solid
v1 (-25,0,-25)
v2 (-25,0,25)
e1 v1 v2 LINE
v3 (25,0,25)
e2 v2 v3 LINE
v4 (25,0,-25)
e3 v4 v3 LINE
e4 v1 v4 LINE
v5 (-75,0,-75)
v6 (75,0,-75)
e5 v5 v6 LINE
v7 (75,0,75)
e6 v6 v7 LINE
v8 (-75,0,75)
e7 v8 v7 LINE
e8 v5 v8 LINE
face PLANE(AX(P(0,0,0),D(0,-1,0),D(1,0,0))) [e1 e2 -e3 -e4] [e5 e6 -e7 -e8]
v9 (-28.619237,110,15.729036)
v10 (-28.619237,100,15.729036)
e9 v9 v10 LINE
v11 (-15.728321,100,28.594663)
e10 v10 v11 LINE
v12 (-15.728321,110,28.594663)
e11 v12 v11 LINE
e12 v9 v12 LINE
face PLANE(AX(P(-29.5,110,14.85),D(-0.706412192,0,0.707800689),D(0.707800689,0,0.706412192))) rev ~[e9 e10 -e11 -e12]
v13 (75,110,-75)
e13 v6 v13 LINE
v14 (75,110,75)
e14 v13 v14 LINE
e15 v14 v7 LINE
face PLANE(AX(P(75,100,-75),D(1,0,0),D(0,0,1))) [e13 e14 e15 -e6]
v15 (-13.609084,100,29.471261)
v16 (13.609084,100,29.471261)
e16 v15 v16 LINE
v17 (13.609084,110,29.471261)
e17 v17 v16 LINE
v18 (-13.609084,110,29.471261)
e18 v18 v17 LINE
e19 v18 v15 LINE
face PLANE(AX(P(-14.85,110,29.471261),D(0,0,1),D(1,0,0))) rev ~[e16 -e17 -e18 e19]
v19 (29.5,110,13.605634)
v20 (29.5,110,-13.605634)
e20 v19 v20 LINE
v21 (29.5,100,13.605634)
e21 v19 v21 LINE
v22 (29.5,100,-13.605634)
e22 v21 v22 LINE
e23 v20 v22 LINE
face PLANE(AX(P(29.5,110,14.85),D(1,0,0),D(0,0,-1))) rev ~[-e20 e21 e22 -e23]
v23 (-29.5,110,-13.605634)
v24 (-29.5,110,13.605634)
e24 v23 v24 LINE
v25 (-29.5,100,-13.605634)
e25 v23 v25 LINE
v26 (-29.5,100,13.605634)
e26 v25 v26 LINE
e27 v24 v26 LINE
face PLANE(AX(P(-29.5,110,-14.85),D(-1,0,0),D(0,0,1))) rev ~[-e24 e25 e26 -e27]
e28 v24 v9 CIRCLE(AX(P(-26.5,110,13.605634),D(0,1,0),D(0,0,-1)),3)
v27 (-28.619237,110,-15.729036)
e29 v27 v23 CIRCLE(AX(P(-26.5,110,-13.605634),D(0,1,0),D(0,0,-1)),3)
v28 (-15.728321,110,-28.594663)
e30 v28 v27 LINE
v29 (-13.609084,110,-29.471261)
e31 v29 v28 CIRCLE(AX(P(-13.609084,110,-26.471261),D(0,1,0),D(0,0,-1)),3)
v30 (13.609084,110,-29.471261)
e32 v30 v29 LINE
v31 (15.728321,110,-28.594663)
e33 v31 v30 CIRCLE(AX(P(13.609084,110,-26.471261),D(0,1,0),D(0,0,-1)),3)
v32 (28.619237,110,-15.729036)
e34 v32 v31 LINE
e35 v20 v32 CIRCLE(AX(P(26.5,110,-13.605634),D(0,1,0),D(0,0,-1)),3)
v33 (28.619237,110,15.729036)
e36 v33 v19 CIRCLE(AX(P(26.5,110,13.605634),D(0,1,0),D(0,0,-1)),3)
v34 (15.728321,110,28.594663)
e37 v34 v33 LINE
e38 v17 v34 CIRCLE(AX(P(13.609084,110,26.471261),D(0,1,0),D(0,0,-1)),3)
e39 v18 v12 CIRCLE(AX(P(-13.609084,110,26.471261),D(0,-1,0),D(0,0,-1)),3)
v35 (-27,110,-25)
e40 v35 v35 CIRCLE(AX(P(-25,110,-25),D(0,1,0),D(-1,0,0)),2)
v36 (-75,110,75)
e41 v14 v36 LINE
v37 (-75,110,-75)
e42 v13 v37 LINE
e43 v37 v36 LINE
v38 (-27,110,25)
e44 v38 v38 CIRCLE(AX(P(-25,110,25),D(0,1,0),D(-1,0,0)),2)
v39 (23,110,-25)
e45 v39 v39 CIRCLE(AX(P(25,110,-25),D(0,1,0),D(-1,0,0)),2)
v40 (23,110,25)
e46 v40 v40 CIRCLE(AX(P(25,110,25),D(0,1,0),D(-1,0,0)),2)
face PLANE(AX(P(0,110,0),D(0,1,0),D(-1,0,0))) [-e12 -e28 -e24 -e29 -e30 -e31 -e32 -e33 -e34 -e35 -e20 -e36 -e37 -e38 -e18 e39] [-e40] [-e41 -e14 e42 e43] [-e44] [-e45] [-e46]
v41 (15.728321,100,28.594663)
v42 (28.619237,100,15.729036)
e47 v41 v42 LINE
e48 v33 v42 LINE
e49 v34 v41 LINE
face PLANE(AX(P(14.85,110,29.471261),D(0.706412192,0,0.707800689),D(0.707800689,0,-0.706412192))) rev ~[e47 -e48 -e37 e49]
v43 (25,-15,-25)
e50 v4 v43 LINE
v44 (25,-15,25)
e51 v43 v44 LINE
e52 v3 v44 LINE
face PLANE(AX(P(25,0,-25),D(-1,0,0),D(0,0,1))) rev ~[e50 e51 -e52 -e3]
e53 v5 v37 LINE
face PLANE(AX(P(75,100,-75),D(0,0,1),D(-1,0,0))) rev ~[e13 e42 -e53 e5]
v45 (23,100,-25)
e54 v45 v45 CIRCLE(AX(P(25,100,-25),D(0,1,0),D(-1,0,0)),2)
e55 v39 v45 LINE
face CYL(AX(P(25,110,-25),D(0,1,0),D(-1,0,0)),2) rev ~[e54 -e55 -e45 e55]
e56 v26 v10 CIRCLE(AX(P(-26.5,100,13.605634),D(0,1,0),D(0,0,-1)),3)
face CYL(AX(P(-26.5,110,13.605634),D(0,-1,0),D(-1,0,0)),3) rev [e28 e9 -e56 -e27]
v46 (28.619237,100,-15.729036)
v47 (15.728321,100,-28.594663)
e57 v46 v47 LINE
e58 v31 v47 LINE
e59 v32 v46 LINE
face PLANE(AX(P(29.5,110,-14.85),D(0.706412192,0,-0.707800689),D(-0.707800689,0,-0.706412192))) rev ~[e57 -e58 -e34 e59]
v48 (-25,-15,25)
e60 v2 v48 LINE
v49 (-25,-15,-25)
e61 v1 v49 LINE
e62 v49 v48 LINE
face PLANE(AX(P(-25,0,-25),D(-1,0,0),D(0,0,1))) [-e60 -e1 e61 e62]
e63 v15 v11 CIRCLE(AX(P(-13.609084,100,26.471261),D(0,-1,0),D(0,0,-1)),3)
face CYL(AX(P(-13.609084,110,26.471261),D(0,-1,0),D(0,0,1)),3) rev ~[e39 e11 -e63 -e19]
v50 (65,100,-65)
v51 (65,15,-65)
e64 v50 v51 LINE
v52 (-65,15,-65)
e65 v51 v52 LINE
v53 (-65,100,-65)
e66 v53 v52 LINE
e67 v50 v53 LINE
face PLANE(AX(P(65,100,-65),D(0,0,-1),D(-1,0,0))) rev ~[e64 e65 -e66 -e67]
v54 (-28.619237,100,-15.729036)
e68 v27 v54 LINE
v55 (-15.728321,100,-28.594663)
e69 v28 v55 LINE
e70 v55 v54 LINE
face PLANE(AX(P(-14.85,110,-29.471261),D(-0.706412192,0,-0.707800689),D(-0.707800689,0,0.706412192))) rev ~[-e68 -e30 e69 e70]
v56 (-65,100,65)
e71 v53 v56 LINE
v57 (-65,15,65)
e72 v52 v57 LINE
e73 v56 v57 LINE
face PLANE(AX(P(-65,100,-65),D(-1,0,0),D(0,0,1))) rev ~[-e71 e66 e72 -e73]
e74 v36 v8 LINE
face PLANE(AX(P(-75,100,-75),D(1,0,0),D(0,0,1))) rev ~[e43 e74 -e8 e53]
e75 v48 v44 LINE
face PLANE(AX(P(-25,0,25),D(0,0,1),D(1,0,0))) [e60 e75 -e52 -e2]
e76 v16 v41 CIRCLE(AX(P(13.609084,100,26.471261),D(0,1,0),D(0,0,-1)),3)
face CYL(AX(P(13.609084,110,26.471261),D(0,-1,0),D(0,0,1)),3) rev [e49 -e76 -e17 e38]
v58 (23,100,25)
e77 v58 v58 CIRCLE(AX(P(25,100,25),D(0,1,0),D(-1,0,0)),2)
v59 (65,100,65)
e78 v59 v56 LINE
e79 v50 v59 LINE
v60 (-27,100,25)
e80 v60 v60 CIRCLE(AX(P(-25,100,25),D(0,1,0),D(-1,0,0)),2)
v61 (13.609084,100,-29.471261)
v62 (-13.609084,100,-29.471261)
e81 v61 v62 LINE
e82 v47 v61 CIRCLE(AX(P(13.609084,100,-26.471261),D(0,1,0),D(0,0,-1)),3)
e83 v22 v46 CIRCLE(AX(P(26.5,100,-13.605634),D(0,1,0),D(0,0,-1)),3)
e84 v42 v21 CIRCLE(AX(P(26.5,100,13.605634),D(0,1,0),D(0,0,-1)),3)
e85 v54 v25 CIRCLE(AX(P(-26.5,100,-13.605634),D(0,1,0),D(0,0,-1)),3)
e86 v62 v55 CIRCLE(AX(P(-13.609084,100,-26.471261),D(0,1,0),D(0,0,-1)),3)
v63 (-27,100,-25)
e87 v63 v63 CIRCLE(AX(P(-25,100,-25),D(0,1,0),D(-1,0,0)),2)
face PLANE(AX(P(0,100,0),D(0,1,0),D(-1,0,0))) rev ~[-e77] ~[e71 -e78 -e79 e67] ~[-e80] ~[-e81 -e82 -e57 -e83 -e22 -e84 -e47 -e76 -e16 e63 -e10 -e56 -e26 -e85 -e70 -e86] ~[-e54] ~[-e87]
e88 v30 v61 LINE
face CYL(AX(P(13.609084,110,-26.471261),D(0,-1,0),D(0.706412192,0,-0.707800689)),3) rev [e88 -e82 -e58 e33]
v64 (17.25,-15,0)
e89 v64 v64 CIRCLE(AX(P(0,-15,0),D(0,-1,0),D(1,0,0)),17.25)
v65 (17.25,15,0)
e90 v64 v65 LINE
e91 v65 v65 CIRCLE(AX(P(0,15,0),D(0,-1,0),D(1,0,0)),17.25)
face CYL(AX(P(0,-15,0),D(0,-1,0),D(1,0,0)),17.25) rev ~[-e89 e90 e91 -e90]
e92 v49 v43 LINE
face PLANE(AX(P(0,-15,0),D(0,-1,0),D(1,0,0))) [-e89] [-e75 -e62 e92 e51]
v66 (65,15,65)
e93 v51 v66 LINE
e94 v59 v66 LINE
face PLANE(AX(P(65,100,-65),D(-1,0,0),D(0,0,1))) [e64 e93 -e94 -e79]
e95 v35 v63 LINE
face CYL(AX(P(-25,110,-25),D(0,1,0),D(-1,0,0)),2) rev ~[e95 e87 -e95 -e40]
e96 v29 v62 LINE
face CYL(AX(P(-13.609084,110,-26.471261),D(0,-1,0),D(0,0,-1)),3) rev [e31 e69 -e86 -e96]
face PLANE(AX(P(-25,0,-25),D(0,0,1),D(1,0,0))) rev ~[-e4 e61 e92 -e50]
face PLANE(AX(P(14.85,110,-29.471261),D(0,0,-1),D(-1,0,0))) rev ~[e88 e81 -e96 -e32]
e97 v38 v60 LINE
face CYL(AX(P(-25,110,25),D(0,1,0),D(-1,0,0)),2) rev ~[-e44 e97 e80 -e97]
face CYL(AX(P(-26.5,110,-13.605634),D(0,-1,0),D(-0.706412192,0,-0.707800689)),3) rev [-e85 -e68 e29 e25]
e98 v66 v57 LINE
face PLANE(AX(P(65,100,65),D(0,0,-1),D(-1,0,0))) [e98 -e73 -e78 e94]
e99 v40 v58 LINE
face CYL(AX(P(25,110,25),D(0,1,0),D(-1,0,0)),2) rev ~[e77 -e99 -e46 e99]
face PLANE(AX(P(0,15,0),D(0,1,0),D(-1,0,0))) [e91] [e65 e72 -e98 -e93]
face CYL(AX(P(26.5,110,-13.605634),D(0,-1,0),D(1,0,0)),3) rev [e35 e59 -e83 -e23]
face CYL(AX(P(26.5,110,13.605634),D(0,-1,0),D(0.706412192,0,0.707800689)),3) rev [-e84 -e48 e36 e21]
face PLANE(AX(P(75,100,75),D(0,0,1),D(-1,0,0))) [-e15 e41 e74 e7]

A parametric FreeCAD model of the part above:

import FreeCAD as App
import Part
import Sketcher
from FreeCAD import Vector
Q = App.Units.Quantity


def edges_at(feature, points):
    """Names of the edges that pass closest to the given points."""
    edges = feature.Shape.Edges
    near = lambda p: min(range(len(edges)), key=lambda i: edges[i].distToShape(Part.Vertex(*p))[0])
    return sorted({f"Edge{near(p) + 1}" for p in points})

doc = App.newDocument("Part")
params = doc.addObject("Spreadsheet::Sheet", "Params")
for row, (alias, value) in enumerate([
    ("sketch1_width", "150 mm"),
    ("pad1_length", "100 mm"),
    ("sketch2_width", "130 mm"),
    ("pocket1_length", "85 mm"),
    ("sketch3_width", "150 mm"),
    ("pad2_length", "10 mm"),
    ("sketch4_width", "50 mm"),
    ("pad3_length", "15 mm"),
    ("sketch5_diameter", "34.5 mm"),
    ("pocket2_length", "30 mm"),
    ("sketch6_diameter", "4 mm"),
    ("pocket3_length", "10 mm"),
    ("sketch7_width", "29.7 mm"),
    ("pocket4_length", "10 mm"),
    ("fillet_radius", "3 mm"),
], start=1):
    params.set(f"A{row}", alias)
    params.set(f"B{row}", "=" + value)
    params.setAlias(f"B{row}", alias)

body = doc.addObject("PartDesign::Body", "Body")

# Sketch on XZ plane
sketch1 = doc.addObject("Sketcher::SketchObject", "Sketch")
body.addObject(sketch1)
sketch1.AttachmentSupport = (doc.XZ_Plane, [""])
sketch1.MapMode = "FlatFace"
sketch1.addGeometry([
    Part.LineSegment(Vector(-75, 75, 0), Vector(-75, -75, 0)),
    Part.LineSegment(Vector(-75, -75, 0), Vector(75, -75, 0)),
    Part.LineSegment(Vector(75, -75, 0), Vector(75, 75, 0)),
    Part.LineSegment(Vector(75, 75, 0), Vector(-75, 75, 0)),
], False)
sketch1.addConstraint([
    Sketcher.Constraint("Coincident", 0, 2, 1, 1),
    Sketcher.Constraint("Coincident", 1, 2, 2, 1),
    Sketcher.Constraint("Coincident", 2, 2, 3, 1),
    Sketcher.Constraint("Coincident", 3, 2, 0, 1),
    Sketcher.Constraint("Vertical", 0),
    Sketcher.Constraint("Horizontal", 1),
    Sketcher.Constraint("Vertical", 2),
    Sketcher.Constraint("Horizontal", 3),
    Sketcher.Constraint("Symmetric", 0, 2, 2, 2, -1, 1),
    Sketcher.Constraint("Equal", 3, 0),
    Sketcher.Constraint("DistanceX", 1, 1, 1, 2, Q("150 mm")),
])
sketch1.setExpression("Constraints[10]", "Params.sketch1_width")
pad1 = doc.addObject("PartDesign::Pad", "Pad")
body.addObject(pad1)
pad1.Profile = sketch1
pad1.setExpression("Length", "Params.pad1_length")
pad1.Reversed = True

# Sketch on XZ plane
sketch2 = doc.addObject("Sketcher::SketchObject", "Sketch001")
body.addObject(sketch2)
sketch2.AttachmentSupport = (doc.XZ_Plane, [""])
sketch2.MapMode = "FlatFace"
sketch2.AttachmentOffset = App.Placement(Vector(0, 0, -100), App.Rotation())
sketch2.addGeometry([
    Part.LineSegment(Vector(65, 65, 0), Vector(65, -65, 0)),
    Part.LineSegment(Vector(65, -65, 0), Vector(-65, -65, 0)),
    Part.LineSegment(Vector(-65, -65, 0), Vector(-65, 65, 0)),
    Part.LineSegment(Vector(-65, 65, 0), Vector(65, 65, 0)),
], False)
sketch2.addConstraint([
    Sketcher.Constraint("Coincident", 0, 2, 1, 1),
    Sketcher.Constraint("Coincident", 1, 2, 2, 1),
    Sketcher.Constraint("Coincident", 2, 2, 3, 1),
    Sketcher.Constraint("Coincident", 3, 2, 0, 1),
    Sketcher.Constraint("Vertical", 0),
    Sketcher.Constraint("Horizontal", 1),
    Sketcher.Constraint("Vertical", 2),
    Sketcher.Constraint("Horizontal", 3),
    Sketcher.Constraint("Symmetric", 0, 2, 2, 2, -1, 1),
    Sketcher.Constraint("Equal", 3, 0),
    Sketcher.Constraint("DistanceX", 1, 2, 1, 1, Q("130 mm")),
])
sketch2.setExpression("Constraints[10]", "Params.sketch2_width")
pocket1 = doc.addObject("PartDesign::Pocket", "Pocket")
body.addObject(pocket1)
pocket1.Profile = sketch2
pocket1.setExpression("Length", "Params.pocket1_length")
pocket1.Reversed = True

# Sketch on XZ plane
sketch3 = doc.addObject("Sketcher::SketchObject", "Sketch002")
body.addObject(sketch3)
sketch3.AttachmentSupport = (doc.XZ_Plane, [""])
sketch3.MapMode = "FlatFace"
sketch3.AttachmentOffset = App.Placement(Vector(0, 0, -100), App.Rotation())
sketch3.addGeometry([
    Part.LineSegment(Vector(75, 75, 0), Vector(75, -75, 0)),
    Part.LineSegment(Vector(75, -75, 0), Vector(-75, -75, 0)),
    Part.LineSegment(Vector(-75, -75, 0), Vector(-75, 75, 0)),
    Part.LineSegment(Vector(-75, 75, 0), Vector(75, 75, 0)),
], False)
sketch3.addConstraint([
    Sketcher.Constraint("Coincident", 0, 2, 1, 1),
    Sketcher.Constraint("Coincident", 1, 2, 2, 1),
    Sketcher.Constraint("Coincident", 2, 2, 3, 1),
    Sketcher.Constraint("Coincident", 3, 2, 0, 1),
    Sketcher.Constraint("Vertical", 0),
    Sketcher.Constraint("Horizontal", 1),
    Sketcher.Constraint("Vertical", 2),
    Sketcher.Constraint("Horizontal", 3),
    Sketcher.Constraint("Symmetric", 0, 2, 2, 2, -1, 1),
    Sketcher.Constraint("Equal", 3, 0),
    Sketcher.Constraint("DistanceX", 1, 2, 1, 1, Q("150 mm")),
])
sketch3.setExpression("Constraints[10]", "Params.sketch3_width")
pad2 = doc.addObject("PartDesign::Pad", "Pad001")
body.addObject(pad2)
pad2.Profile = sketch3
pad2.setExpression("Length", "Params.pad2_length")
pad2.Reversed = True

# Sketch on XZ plane
sketch4 = doc.addObject("Sketcher::SketchObject", "Sketch003")
body.addObject(sketch4)
sketch4.AttachmentSupport = (doc.XZ_Plane, [""])
sketch4.MapMode = "FlatFace"
sketch4.addGeometry([
    Part.LineSegment(Vector(-25, 25, 0), Vector(-25, -25, 0)),
    Part.LineSegment(Vector(-25, -25, 0), Vector(25, -25, 0)),
    Part.LineSegment(Vector(25, -25, 0), Vector(25, 25, 0)),
    Part.LineSegment(Vector(25, 25, 0), Vector(-25, 25, 0)),
], False)
sketch4.addConstraint([
    Sketcher.Constraint("Coincident", 0, 2, 1, 1),
    Sketcher.Constraint("Coincident", 1, 2, 2, 1),
    Sketcher.Constraint("Coincident", 2, 2, 3, 1),
    Sketcher.Constraint("Coincident", 3, 2, 0, 1),
    Sketcher.Constraint("Vertical", 0),
    Sketcher.Constraint("Horizontal", 1),
    Sketcher.Constraint("Vertical", 2),
    Sketcher.Constraint("Horizontal", 3),
    Sketcher.Constraint("Symmetric", 0, 2, 2, 2, -1, 1),
    Sketcher.Constraint("Equal", 3, 0),
    Sketcher.Constraint("DistanceX", 1, 1, 1, 2, Q("50 mm")),
])
sketch4.setExpression("Constraints[10]", "Params.sketch4_width")
pad3 = doc.addObject("PartDesign::Pad", "Pad002")
body.addObject(pad3)
pad3.Profile = sketch4
pad3.setExpression("Length", "Params.pad3_length")

# Sketch on XZ plane
sketch5 = doc.addObject("Sketcher::SketchObject", "Sketch004")
body.addObject(sketch5)
sketch5.AttachmentSupport = (doc.XZ_Plane, [""])
sketch5.MapMode = "FlatFace"
sketch5.AttachmentOffset = App.Placement(Vector(0, 0, 15), App.Rotation())
sketch5.addGeometry(Part.Circle(Vector(0, 0, 0), Vector(0, 0, 1), 17), False)
sketch5.addConstraint([
    Sketcher.Constraint("Coincident", 0, 3, -1, 1),
    Sketcher.Constraint("Diameter", 0, Q("34.5 mm")),
])
sketch5.setExpression("Constraints[1]", "Params.sketch5_diameter")
pocket2 = doc.addObject("PartDesign::Pocket", "Pocket001")
body.addObject(pocket2)
pocket2.Profile = sketch5
pocket2.setExpression("Length", "Params.pocket2_length")

# Sketch on XZ plane
sketch6 = doc.addObject("Sketcher::SketchObject", "Sketch005")
body.addObject(sketch6)
sketch6.AttachmentSupport = (doc.XZ_Plane, [""])
sketch6.MapMode = "FlatFace"
sketch6.AttachmentOffset = App.Placement(Vector(0, 0, -110), App.Rotation())
sketch6.addGeometry([
    Part.Circle(Vector(-25, 25, 0), Vector(0, 0, 1), 2),
    Part.Circle(Vector(-25, -25, 0), Vector(0, 0, 1), 2),
    Part.Circle(Vector(25, 25, 0), Vector(0, 0, 1), 2),
    Part.Circle(Vector(25, -25, 0), Vector(0, 0, 1), 2),
], False)
sketch6.addConstraint([
    Sketcher.Constraint("Equal", 0, 1),
    Sketcher.Constraint("Equal", 1, 2),
    Sketcher.Constraint("Equal", 2, 3),
    Sketcher.Constraint("Symmetric", 1, 3, 2, 3, -1, 1),
    Sketcher.Constraint("Symmetric", 0, 3, 3, 3, -1, 1),
    Sketcher.Constraint("Symmetric", 0, 3, 2, 3, -2),
    Sketcher.Constraint("Diameter", 0, Q("4 mm")),
    Sketcher.Constraint("DistanceX", 0, 3, -1, 1, Q("25 mm")),
    Sketcher.Constraint("DistanceY", -1, 1, 0, 3, Q("25 mm")),
])
sketch6.setExpression("Constraints[6]", "Params.sketch6_diameter")
pocket3 = doc.addObject("PartDesign::Pocket", "Pocket002")
body.addObject(pocket3)
pocket3.Profile = sketch6
pocket3.setExpression("Length", "Params.pocket3_length")
pocket3.Reversed = True

# Sketch on XZ plane
sketch7 = doc.addObject("Sketcher::SketchObject", "Sketch006")
body.addObject(sketch7)
sketch7.AttachmentSupport = (doc.XZ_Plane, [""])
sketch7.MapMode = "FlatFace"
sketch7.AttachmentOffset = App.Placement(Vector(0, 0, -110), App.Rotation())
sketch7.addGeometry([
    Part.LineSegment(Vector(-15, 29, 0), Vector(15, 29, 0)),  # 0
    Part.LineSegment(Vector(15, 29, 0), Vector(30, 15, 0)),  # 1
    Part.LineSegment(Vector(30, 15, 0), Vector(30, -15, 0)),  # 2
    Part.LineSegment(Vector(30, -15, 0), Vector(15, -29, 0)),  # 3
    Part.LineSegment(Vector(15, -29, 0), Vector(-15, -29, 0)),  # 4
    Part.LineSegment(Vector(-15, -29, 0), Vector(-30, -15, 0)),  # 5
    Part.LineSegment(Vector(-30, -15, 0), Vector(-30, 15, 0)),  # 6
    Part.LineSegment(Vector(-30, 15, 0), Vector(-15, 29, 0)),  # 7
], False)
sketch7.addConstraint([
    Sketcher.Constraint("Coincident", 0, 2, 1, 1),
    Sketcher.Constraint("Coincident", 1, 2, 2, 1),
    Sketcher.Constraint("Coincident", 2, 2, 3, 1),
    Sketcher.Constraint("Coincident", 3, 2, 4, 1),
    Sketcher.Constraint("Coincident", 4, 2, 5, 1),
    Sketcher.Constraint("Coincident", 5, 2, 6, 1),
    Sketcher.Constraint("Coincident", 6, 2, 7, 1),
    Sketcher.Constraint("Coincident", 7, 2, 0, 1),
    Sketcher.Constraint("Horizontal", 0),
    Sketcher.Constraint("Vertical", 2),
    Sketcher.Constraint("Horizontal", 4),
    Sketcher.Constraint("Vertical", 6),
    Sketcher.Constraint("Symmetric", 0, 2, 4, 2, -1, 1),
    Sketcher.Constraint("Symmetric", 1, 2, 5, 2, -1, 1),
    Sketcher.Constraint("Parallel", 3, 7),
    Sketcher.Constraint("Horizontal", 2, 2, 5, 2),
    Sketcher.Constraint("Horizontal", 1, 2, 6, 2),
    Sketcher.Constraint("Vertical", 0, 2, 3, 2),
    Sketcher.Constraint("Equal", 4, 2),
    Sketcher.Constraint("DistanceX", 0, 1, 0, 2, Q("29.7 mm")),
    Sketcher.Constraint("DistanceX", 5, 2, 2, 2, Q("59 mm")),
    Sketcher.Constraint("DistanceY", -1, 1, 0, 2, Q("29.471261 mm")),
])
sketch7.setExpression("Constraints[19]", "Params.sketch7_width")
pocket4 = doc.addObject("PartDesign::Pocket", "Pocket003")
body.addObject(pocket4)
pocket4.Profile = sketch7
pocket4.setExpression("Length", "Params.pocket4_length")
pocket4.Reversed = True
doc.recompute()

fillet = doc.addObject("PartDesign::Fillet", "Fillet")
body.addObject(fillet)
fillet.Base = (pocket4, edges_at(pocket4, [
    (29.5, 105, 14.85),
    (14.85, 105, 29.471),
    (29.5, 105, -14.85),
    (14.85, 105, -29.471),
    (-14.85, 105, -29.471),
    (-14.85, 105, 29.471),
    (-29.5, 105, 14.85),
    (-29.5, 105, -14.85),
]))
fillet.setExpression("Radius", "Params.fillet_radius")

doc.recompute()
